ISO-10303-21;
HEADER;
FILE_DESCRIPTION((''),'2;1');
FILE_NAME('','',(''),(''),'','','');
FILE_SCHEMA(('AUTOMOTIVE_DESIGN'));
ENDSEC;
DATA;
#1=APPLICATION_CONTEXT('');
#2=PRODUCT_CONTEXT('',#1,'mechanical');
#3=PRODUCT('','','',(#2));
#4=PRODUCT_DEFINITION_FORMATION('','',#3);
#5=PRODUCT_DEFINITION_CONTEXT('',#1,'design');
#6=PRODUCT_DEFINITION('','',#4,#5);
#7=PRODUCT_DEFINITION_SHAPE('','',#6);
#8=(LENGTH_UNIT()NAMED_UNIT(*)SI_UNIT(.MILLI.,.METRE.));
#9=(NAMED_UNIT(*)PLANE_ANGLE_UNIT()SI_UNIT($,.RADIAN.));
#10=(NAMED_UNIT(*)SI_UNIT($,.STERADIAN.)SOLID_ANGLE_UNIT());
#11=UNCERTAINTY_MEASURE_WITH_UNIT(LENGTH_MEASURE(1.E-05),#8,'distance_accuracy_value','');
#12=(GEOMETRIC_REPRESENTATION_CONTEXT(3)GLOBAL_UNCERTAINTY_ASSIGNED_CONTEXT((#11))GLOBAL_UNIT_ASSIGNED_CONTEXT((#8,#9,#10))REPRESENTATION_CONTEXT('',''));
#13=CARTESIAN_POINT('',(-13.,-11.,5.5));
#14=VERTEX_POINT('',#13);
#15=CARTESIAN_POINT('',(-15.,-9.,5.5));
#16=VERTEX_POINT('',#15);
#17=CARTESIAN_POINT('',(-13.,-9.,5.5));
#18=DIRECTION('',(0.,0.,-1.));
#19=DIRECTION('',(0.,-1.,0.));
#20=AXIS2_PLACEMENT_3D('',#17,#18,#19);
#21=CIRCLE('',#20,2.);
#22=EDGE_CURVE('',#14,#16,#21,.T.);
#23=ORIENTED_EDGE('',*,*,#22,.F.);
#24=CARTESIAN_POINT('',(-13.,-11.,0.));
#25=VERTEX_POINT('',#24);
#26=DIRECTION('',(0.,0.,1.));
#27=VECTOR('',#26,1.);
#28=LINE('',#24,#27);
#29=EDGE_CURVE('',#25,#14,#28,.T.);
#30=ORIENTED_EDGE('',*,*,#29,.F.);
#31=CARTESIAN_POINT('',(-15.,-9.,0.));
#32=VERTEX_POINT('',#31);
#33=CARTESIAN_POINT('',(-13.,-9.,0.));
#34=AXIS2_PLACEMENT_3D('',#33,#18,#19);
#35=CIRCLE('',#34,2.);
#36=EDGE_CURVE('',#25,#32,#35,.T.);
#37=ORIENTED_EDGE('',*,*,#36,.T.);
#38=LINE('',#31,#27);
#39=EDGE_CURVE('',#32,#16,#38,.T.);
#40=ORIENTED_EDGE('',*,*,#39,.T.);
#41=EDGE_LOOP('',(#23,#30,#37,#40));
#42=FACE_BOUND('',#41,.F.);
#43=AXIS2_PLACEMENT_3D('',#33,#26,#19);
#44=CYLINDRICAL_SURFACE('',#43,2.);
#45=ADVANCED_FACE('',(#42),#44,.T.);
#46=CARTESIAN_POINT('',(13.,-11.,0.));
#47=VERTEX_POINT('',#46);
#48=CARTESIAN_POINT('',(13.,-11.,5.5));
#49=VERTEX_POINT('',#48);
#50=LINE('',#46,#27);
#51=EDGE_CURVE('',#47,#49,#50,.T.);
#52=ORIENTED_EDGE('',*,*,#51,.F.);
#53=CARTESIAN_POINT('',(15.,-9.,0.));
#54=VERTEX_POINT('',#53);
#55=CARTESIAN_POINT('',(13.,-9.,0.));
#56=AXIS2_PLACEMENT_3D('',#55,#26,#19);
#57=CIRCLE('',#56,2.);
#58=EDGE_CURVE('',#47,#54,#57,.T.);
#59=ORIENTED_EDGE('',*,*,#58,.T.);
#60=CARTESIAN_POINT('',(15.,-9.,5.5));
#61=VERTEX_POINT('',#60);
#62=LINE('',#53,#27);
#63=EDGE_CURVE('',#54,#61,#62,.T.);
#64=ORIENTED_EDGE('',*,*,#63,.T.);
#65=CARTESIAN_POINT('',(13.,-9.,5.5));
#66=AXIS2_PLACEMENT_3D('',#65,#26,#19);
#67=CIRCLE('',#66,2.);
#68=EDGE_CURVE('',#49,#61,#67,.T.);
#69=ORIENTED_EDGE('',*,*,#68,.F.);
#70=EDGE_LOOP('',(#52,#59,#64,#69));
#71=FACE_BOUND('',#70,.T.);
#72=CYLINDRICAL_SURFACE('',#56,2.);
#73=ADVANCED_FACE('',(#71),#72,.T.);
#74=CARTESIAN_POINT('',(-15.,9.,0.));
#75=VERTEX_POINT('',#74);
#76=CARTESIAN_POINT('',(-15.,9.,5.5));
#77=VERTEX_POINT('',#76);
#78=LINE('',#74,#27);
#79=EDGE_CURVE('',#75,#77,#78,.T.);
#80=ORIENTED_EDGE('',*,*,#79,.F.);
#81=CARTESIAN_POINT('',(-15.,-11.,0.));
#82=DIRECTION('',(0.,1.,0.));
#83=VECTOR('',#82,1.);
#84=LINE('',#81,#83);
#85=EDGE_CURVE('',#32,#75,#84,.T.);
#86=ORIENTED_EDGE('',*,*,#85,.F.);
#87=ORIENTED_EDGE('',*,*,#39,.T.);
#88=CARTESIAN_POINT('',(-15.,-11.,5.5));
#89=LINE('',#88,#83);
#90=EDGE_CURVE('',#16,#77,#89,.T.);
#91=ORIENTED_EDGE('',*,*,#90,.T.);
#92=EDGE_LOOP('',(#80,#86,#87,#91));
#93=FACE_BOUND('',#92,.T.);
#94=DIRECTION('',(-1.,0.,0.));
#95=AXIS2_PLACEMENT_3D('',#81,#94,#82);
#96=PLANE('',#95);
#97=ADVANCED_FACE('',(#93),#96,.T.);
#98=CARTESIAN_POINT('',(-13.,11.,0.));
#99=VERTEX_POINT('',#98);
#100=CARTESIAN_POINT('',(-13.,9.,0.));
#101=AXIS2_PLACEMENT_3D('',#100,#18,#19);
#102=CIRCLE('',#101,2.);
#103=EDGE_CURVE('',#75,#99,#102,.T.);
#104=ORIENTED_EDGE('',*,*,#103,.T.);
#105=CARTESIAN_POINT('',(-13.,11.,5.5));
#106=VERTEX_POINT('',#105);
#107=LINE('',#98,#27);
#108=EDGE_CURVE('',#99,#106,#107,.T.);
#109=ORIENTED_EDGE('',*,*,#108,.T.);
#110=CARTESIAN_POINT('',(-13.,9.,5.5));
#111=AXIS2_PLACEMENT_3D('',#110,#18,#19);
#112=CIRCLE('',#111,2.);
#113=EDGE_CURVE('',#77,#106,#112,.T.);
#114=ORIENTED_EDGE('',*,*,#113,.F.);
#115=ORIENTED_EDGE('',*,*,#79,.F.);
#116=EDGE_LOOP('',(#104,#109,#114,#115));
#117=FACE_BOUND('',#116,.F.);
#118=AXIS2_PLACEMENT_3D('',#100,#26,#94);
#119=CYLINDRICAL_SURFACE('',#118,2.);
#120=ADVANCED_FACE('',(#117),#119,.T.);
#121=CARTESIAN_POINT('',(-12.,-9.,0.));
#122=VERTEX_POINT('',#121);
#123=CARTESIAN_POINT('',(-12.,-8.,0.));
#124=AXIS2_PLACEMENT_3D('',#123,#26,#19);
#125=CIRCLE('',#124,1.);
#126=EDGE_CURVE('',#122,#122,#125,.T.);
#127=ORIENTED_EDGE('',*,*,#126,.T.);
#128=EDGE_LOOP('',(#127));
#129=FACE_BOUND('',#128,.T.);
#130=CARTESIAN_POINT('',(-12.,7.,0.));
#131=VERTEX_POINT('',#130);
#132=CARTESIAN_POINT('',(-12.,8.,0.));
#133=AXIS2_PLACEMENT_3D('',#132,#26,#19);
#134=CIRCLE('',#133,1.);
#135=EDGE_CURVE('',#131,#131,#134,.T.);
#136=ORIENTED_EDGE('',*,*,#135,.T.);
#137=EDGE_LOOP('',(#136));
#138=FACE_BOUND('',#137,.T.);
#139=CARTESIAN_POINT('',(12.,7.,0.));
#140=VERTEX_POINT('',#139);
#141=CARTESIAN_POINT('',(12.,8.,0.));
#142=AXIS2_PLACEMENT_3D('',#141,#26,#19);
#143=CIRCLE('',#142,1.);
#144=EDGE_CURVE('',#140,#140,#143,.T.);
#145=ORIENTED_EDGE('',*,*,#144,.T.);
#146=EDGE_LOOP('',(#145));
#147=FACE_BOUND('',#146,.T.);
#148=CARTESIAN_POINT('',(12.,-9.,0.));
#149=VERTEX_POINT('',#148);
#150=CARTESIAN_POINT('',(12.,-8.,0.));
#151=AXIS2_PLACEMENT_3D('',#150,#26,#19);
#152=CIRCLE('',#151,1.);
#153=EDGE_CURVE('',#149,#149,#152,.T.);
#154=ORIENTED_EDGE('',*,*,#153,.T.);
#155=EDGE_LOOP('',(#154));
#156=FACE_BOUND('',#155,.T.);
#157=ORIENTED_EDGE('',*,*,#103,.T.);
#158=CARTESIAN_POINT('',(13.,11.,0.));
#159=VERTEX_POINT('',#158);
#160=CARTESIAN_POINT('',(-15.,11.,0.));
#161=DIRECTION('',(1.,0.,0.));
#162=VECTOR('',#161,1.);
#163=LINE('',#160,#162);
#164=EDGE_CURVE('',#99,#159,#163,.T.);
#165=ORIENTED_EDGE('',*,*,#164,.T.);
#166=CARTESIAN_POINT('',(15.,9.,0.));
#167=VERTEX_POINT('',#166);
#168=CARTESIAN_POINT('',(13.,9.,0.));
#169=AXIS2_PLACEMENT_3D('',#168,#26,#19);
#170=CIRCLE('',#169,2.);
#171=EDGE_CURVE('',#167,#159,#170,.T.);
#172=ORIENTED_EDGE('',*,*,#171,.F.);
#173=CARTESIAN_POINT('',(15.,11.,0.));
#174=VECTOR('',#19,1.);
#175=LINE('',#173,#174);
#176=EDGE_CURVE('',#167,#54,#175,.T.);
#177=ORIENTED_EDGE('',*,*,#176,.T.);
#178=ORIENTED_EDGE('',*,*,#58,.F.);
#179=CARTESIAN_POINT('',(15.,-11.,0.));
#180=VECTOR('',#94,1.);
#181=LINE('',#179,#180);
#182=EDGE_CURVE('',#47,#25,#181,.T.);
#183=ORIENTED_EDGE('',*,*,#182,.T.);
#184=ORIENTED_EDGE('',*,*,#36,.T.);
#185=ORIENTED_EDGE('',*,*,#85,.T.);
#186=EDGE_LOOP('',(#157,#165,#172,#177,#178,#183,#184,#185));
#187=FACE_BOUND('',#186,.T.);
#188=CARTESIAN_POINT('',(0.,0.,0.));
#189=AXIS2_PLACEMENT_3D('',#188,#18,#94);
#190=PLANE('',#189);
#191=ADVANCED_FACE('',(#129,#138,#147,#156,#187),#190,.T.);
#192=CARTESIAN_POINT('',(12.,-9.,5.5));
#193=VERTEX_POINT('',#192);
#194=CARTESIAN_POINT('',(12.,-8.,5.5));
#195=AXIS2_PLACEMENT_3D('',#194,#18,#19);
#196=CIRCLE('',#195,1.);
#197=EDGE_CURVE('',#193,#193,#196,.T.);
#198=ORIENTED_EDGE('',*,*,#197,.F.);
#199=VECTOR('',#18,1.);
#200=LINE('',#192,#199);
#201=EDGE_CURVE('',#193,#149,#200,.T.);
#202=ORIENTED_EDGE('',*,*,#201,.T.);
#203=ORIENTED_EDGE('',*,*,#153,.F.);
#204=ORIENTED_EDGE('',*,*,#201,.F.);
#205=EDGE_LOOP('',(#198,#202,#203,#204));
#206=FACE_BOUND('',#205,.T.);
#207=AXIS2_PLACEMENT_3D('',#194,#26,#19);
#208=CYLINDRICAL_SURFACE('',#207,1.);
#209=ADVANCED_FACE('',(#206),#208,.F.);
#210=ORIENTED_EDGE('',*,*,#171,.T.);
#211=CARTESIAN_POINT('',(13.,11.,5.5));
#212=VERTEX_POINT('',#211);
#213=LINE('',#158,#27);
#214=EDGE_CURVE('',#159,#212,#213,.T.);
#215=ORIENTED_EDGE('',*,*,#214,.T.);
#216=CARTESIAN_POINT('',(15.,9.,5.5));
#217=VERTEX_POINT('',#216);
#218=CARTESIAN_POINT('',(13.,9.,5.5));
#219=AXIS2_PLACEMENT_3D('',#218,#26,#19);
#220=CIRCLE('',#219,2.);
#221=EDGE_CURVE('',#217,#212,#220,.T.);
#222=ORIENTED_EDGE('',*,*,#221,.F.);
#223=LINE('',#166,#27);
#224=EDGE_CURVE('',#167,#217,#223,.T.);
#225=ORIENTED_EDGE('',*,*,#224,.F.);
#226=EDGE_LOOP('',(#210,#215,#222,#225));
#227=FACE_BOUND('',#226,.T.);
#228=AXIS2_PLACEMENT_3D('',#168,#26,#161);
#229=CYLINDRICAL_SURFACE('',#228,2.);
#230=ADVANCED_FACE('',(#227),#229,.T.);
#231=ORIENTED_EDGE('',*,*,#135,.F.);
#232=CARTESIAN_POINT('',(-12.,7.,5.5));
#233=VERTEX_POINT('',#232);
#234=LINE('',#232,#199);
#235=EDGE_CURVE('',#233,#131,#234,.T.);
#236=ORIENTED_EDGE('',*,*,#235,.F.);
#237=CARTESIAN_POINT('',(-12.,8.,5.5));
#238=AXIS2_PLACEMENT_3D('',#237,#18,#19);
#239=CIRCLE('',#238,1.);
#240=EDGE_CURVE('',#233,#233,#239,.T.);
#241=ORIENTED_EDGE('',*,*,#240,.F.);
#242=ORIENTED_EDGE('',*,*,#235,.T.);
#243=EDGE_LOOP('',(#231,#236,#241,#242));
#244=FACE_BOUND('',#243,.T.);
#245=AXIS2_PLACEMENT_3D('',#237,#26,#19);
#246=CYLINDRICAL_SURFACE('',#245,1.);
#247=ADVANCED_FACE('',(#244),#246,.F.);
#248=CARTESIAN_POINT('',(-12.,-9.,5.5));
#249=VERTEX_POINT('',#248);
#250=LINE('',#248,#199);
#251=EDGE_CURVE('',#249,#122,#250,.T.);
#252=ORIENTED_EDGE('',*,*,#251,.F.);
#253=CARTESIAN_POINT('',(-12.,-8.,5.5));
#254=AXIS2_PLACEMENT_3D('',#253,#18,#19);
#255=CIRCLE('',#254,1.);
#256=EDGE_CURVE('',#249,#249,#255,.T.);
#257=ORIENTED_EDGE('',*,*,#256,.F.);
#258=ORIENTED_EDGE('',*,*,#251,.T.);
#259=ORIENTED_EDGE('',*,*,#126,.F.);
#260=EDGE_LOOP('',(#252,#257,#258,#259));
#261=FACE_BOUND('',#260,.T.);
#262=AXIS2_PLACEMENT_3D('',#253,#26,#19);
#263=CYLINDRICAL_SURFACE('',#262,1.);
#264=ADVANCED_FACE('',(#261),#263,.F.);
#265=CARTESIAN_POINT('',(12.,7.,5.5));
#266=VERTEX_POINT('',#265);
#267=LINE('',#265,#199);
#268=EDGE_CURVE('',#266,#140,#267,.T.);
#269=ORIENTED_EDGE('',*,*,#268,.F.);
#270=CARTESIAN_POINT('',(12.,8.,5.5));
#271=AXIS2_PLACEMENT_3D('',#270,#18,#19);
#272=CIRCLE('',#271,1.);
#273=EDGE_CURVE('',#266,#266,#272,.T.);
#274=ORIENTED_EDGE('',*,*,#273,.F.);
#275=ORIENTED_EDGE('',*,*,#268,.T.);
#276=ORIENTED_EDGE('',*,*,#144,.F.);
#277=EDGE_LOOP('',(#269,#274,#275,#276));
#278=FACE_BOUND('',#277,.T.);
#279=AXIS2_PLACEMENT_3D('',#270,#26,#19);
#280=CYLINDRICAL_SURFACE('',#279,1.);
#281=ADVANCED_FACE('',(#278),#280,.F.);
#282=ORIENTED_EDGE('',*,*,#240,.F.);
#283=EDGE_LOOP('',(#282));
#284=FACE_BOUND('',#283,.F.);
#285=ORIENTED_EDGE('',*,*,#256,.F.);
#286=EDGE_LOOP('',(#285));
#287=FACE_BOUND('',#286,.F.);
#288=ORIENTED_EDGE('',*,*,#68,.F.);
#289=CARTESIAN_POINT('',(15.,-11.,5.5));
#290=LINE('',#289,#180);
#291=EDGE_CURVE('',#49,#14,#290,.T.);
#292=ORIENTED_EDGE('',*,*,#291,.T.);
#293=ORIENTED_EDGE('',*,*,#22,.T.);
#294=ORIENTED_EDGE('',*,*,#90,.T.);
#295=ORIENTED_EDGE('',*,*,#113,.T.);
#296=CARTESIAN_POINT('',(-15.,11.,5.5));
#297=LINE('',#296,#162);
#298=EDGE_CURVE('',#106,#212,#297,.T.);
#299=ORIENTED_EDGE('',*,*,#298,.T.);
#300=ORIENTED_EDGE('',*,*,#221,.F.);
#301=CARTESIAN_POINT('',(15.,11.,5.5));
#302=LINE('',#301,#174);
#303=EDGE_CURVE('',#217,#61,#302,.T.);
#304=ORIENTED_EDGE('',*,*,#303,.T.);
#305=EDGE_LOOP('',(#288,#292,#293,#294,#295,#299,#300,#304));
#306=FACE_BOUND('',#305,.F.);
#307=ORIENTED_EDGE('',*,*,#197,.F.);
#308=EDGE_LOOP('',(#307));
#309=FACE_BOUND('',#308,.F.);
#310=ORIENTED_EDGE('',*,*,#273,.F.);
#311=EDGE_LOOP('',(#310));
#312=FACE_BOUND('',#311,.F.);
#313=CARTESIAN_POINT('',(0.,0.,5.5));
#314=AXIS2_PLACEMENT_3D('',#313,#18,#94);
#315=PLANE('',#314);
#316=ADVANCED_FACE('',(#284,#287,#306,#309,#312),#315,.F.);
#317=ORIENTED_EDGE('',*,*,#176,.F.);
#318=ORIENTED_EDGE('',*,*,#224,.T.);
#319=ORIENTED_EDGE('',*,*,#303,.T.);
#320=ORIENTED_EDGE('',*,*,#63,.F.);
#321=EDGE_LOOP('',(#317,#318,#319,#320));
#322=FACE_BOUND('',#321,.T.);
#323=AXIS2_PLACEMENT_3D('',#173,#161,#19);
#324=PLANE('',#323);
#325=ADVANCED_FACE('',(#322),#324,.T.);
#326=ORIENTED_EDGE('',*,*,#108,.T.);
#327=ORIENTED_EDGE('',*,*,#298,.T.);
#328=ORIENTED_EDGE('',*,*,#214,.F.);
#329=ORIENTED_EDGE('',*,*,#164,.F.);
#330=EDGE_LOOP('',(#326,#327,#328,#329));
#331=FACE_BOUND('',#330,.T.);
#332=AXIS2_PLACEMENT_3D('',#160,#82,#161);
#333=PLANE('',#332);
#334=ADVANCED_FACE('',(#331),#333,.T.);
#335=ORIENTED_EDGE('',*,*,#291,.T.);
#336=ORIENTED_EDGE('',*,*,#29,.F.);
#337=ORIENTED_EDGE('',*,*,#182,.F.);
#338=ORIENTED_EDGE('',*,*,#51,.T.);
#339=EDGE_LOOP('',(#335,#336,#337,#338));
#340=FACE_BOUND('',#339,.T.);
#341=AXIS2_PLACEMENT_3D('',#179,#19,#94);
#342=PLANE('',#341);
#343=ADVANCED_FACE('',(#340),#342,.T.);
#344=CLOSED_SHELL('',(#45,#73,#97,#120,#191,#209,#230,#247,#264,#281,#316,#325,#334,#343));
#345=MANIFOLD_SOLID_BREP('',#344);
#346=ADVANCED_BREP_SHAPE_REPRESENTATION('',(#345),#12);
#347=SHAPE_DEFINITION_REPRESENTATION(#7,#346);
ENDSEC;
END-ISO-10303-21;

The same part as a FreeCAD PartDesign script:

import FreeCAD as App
import Part
import Sketcher
from FreeCAD import Vector


def edges_at(feature, points):
    """Names of the edges that pass closest to the given points."""
    edges = feature.Shape.Edges
    near = lambda p: min(range(len(edges)), key=lambda i: edges[i].distToShape(Part.Vertex(*p))[0])
    return sorted({f"Edge{near(p) + 1}" for p in points})


def add_polygon(sketch, points):
    """Adds a closed chain of lines whose ends are joined by coincident constraints."""
    first, n = sketch.GeometryCount, len(points)
    for a, b in zip(points, points[1:] + points[:1]):
        sketch.addGeometry(Part.LineSegment(App.Vector(*a, 0), App.Vector(*b, 0)), False)
    for i in range(n):
        sketch.addConstraint(Sketcher.Constraint("Coincident", first + i, 2, first + (i + 1) % n, 1))

doc = App.newDocument("Part")
body = doc.addObject("PartDesign::Body", "Body")

sketch1 = doc.addObject("Sketcher::SketchObject", "Sketch")
body.addObject(sketch1)
sketch1.AttachmentSupport = (doc.XY_Plane, [""])
sketch1.MapMode = "FlatFace"
add_polygon(sketch1, [(-15, -11), (15, -11), (15, 11), (-15, 11)])
sketch1.addConstraint(Sketcher.Constraint("Horizontal", 0))
sketch1.addConstraint(Sketcher.Constraint("Vertical", 1))
sketch1.addConstraint(Sketcher.Constraint("Horizontal", 2))
sketch1.addConstraint(Sketcher.Constraint("Vertical", 3))
sketch1.addConstraint(Sketcher.Constraint("Symmetric", 0, 2, 2, 2, -1, 1))
sketch1.addConstraint(Sketcher.Constraint("DistanceX", -1, 1, 0, 2, 15.0))
sketch1.addConstraint(Sketcher.Constraint("DistanceY", 1, 1, 1, 2, 22.0))
pad1 = doc.addObject("PartDesign::Pad", "Pad")
body.addObject(pad1)
pad1.Profile = sketch1
pad1.Length = 5.5

sketch2 = doc.addObject("Sketcher::SketchObject", "Sketch001")
body.addObject(sketch2)
sketch2.AttachmentSupport = (doc.XY_Plane, [""])
sketch2.MapMode = "FlatFace"
sketch2.AttachmentOffset = App.Placement(Vector(0, 0, 5.5), App.Rotation())
sketch2.addGeometry(Part.Circle(Vector(12, 8, 0), Vector(0, 0, 1), 1), False)
sketch2.addConstraint(Sketcher.Constraint("Diameter", 0, 2.0))
sketch2.addConstraint(Sketcher.Constraint("DistanceX", -1, 1, 0, 3, 12.0))
sketch2.addConstraint(Sketcher.Constraint("DistanceY", -1, 1, 0, 3, 8.0))
doc.recompute()
hole = doc.addObject("PartDesign::Hole", "Hole")
body.addObject(hole)
hole.Profile = sketch2
hole.ThreadType = "None"
hole.Diameter = 2
hole.DepthType = "ThroughAll"

sketch3 = doc.addObject("Sketcher::SketchObject", "Sketch002")
body.addObject(sketch3)
sketch3.AttachmentSupport = (doc.XY_Plane, [""])
sketch3.MapMode = "FlatFace"
sketch3.AttachmentOffset = App.Placement(Vector(0, 0, 5.5), App.Rotation())
sketch3.addGeometry(Part.Circle(Vector(12, -8, 0), Vector(0, 0, 1), 1), False)
sketch3.addConstraint(Sketcher.Constraint("Diameter", 0, 2.0))
sketch3.addConstraint(Sketcher.Constraint("DistanceX", -1, 1, 0, 3, 12.0))
sketch3.addConstraint(Sketcher.Constraint("DistanceY", 0, 3, -1, 1, 8.0))
doc.recompute()
hole2 = doc.addObject("PartDesign::Hole", "Hole001")
body.addObject(hole2)
hole2.Profile = sketch3
hole2.ThreadType = "None"
hole2.Diameter = 2
hole2.DepthType = "ThroughAll"

sketch4 = doc.addObject("Sketcher::SketchObject", "Sketch003")
body.addObject(sketch4)
sketch4.AttachmentSupport = (doc.XY_Plane, [""])
sketch4.MapMode = "FlatFace"
sketch4.AttachmentOffset = App.Placement(Vector(0, 0, 5.5), App.Rotation())
sketch4.addGeometry(Part.Circle(Vector(-12, 8, 0), Vector(0, 0, 1), 1), False)
sketch4.addConstraint(Sketcher.Constraint("Diameter", 0, 2.0))
sketch4.addConstraint(Sketcher.Constraint("DistanceX", 0, 3, -1, 1, 12.0))
sketch4.addConstraint(Sketcher.Constraint("DistanceY", -1, 1, 0, 3, 8.0))
doc.recompute()
hole3 = doc.addObject("PartDesign::Hole", "Hole002")
body.addObject(hole3)
hole3.Profile = sketch4
hole3.ThreadType = "None"
hole3.Diameter = 2
hole3.DepthType = "ThroughAll"

sketch5 = doc.addObject("Sketcher::SketchObject", "Sketch004")
body.addObject(sketch5)
sketch5.AttachmentSupport = (doc.XY_Plane, [""])
sketch5.MapMode = "FlatFace"
sketch5.AttachmentOffset = App.Placement(Vector(0, 0, 5.5), App.Rotation())
sketch5.addGeometry(Part.Circle(Vector(-12, -8, 0), Vector(0, 0, 1), 1), False)
sketch5.addConstraint(Sketcher.Constraint("Diameter", 0, 2.0))
sketch5.addConstraint(Sketcher.Constraint("DistanceX", 0, 3, -1, 1, 12.0))
sketch5.addConstraint(Sketcher.Constraint("DistanceY", 0, 3, -1, 1, 8.0))
doc.recompute()
hole4 = doc.addObject("PartDesign::Hole", "Hole003")
body.addObject(hole4)
hole4.Profile = sketch5
hole4.ThreadType = "None"
hole4.Diameter = 2
hole4.DepthType = "ThroughAll"
doc.recompute()

fillet = doc.addObject("PartDesign::Fillet", "Fillet")
body.addObject(fillet)
fillet.Base = (hole4, edges_at(hole4, [(-15, 11, 2.75), (-15, -11, 2.75), (15, -11, 2.75)]))
fillet.Radius = 2
doc.recompute()

fillet2 = doc.addObject("PartDesign::Fillet", "Fillet001")
body.addObject(fillet2)
fillet2.Base = (fillet, edges_at(fillet, [(15, 11, 2.75)]))
fillet2.Radius = 2

doc.recompute()
